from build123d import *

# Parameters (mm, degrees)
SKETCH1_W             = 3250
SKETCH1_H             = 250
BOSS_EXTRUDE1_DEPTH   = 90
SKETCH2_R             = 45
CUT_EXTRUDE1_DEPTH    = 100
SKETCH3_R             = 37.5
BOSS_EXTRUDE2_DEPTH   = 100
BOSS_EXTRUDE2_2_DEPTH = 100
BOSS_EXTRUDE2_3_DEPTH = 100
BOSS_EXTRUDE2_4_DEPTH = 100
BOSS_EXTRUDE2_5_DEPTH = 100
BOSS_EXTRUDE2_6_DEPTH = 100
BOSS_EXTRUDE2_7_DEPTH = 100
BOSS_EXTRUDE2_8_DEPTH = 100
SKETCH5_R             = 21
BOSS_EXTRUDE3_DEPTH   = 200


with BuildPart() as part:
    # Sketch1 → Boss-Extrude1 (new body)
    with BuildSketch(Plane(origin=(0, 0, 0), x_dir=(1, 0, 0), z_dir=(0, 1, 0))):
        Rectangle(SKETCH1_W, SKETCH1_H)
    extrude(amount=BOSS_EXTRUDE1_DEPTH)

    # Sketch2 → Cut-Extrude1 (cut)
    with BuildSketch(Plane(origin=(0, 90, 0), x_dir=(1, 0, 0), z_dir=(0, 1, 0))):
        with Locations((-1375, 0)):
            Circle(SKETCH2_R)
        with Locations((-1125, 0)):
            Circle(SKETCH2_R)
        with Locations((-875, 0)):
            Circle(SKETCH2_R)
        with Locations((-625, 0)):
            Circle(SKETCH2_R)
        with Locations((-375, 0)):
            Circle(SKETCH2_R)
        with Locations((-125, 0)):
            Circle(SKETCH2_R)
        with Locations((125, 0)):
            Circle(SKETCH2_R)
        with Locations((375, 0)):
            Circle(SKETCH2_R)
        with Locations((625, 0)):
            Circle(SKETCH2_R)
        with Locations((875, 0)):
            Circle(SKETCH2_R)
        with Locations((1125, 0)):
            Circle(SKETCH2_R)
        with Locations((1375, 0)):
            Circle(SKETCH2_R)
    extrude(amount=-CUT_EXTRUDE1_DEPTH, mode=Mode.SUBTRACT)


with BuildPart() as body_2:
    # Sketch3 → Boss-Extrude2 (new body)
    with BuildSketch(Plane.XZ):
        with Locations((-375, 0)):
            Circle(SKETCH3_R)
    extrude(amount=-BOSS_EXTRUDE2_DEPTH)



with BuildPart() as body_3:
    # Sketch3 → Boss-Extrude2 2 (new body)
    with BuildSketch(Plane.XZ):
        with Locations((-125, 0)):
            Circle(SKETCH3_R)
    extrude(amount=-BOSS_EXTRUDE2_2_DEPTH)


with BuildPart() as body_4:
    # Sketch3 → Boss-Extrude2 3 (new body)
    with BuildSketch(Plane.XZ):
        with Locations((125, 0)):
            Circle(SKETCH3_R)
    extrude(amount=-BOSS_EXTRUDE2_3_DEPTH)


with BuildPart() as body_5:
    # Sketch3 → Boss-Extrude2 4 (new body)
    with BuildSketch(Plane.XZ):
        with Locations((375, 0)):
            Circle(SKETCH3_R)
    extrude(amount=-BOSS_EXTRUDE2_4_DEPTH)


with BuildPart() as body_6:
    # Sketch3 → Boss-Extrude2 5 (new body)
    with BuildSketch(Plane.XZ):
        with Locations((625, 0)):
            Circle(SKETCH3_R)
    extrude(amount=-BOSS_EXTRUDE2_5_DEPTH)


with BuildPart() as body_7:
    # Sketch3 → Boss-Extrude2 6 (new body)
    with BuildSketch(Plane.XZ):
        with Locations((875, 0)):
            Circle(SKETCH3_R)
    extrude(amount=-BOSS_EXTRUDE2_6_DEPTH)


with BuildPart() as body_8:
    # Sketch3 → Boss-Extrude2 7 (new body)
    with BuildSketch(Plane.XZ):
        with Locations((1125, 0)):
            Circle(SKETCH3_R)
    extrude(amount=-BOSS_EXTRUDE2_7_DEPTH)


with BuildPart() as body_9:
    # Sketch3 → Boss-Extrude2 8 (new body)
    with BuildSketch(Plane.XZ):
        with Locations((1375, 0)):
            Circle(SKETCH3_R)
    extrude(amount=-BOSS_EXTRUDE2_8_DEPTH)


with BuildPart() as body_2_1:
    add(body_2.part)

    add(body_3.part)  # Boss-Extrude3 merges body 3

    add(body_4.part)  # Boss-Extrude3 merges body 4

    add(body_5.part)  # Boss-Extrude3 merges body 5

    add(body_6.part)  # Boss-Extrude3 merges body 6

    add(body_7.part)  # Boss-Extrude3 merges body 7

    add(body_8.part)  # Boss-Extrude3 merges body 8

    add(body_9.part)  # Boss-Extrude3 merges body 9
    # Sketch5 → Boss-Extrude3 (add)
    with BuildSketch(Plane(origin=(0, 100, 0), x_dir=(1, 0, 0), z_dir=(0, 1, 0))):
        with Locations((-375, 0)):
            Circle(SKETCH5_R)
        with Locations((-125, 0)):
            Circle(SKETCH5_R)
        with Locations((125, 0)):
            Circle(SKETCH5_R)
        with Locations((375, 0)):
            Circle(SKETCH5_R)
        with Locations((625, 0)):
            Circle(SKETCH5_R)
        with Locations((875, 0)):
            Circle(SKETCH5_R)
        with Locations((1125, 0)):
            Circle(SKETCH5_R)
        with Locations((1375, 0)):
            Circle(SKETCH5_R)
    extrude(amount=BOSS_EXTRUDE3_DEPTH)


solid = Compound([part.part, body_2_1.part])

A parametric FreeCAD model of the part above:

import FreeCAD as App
import Part
import Sketcher

doc = App.newDocument("Part")
body = doc.addObject("PartDesign::Body", "Body")

# Sketch on XZ plane
sketch1 = doc.addObject("Sketcher::SketchObject", "Sketch")
body.addObject(sketch1)
sketch1.AttachmentSupport = (doc.XZ_Plane, [""])
sketch1.MapMode = "FlatFace"
sketch1.addGeometry(Part.LineSegment(App.Vector(-1625, -125, 0), App.Vector(-1625, 125, 0)), False)
sketch1.addGeometry(Part.LineSegment(App.Vector(-1625, 125, 0), App.Vector(1625, 125, 0)), False)
sketch1.addGeometry(Part.LineSegment(App.Vector(1625, 125, 0), App.Vector(1625, -125, 0)), False)
sketch1.addGeometry(Part.LineSegment(App.Vector(1625, -125, 0), App.Vector(-1625, -125, 0)), False)
sketch1.addConstraint(Sketcher.Constraint("Coincident", 0, 2, 1, 1))
sketch1.addConstraint(Sketcher.Constraint("Coincident", 1, 2, 2, 1))
sketch1.addConstraint(Sketcher.Constraint("Coincident", 2, 2, 3, 1))
sketch1.addConstraint(Sketcher.Constraint("Coincident", 3, 2, 0, 1))
sketch1.addConstraint(Sketcher.Constraint("Vertical", 0))
sketch1.addConstraint(Sketcher.Constraint("Horizontal", 1))
sketch1.addConstraint(Sketcher.Constraint("Vertical", 2))
sketch1.addConstraint(Sketcher.Constraint("Horizontal", 3))
sketch1.addConstraint(Sketcher.Constraint("Symmetric", 0, 2, 2, 2, -1, 1))
sketch1.addConstraint(Sketcher.Constraint("DistanceX", 1, 1, 1, 2, 3250.0))
sketch1.addConstraint(Sketcher.Constraint("DistanceY", 0, 1, 0, 2, 250.0))
pad1 = doc.addObject("PartDesign::Pad", "Pad")
body.addObject(pad1)
pad1.Profile = sketch1
pad1.Length = 90
pad1.Reversed = True

# Sketch on XZ plane
sketch2 = doc.addObject("Sketcher::SketchObject", "Sketch001")
body.addObject(sketch2)
sketch2.AttachmentSupport = (doc.XZ_Plane, [""])
sketch2.MapMode = "FlatFace"
sketch2.AttachmentOffset = App.Placement(App.Vector(0, 0, -90), App.Rotation())
sketch2.addGeometry(Part.Circle(App.Vector(-1375, 0, 0), App.Vector(0, 0, 1), 45), False)
sketch2.addGeometry(Part.Circle(App.Vector(-1125, 0, 0), App.Vector(0, 0, 1), 45), False)
sketch2.addGeometry(Part.Circle(App.Vector(-875, 0, 0), App.Vector(0, 0, 1), 45), False)
sketch2.addGeometry(Part.Circle(App.Vector(-625, 0, 0), App.Vector(0, 0, 1), 45), False)
sketch2.addGeometry(Part.Circle(App.Vector(-375, 0, 0), App.Vector(0, 0, 1), 45), False)
sketch2.addGeometry(Part.Circle(App.Vector(-125, 0, 0), App.Vector(0, 0, 1), 45), False)
sketch2.addGeometry(Part.Circle(App.Vector(125, 0, 0), App.Vector(0, 0, 1), 45), False)
sketch2.addGeometry(Part.Circle(App.Vector(375, 0, 0), App.Vector(0, 0, 1), 45), False)
sketch2.addGeometry(Part.Circle(App.Vector(625, 0, 0), App.Vector(0, 0, 1), 45), False)
sketch2.addGeometry(Part.Circle(App.Vector(875, 0, 0), App.Vector(0, 0, 1), 45), False)
sketch2.addGeometry(Part.Circle(App.Vector(1125, 0, 0), App.Vector(0, 0, 1), 45), False)
sketch2.addGeometry(Part.Circle(App.Vector(1375, 0, 0), App.Vector(0, 0, 1), 45), False)
sketch2.addConstraint(Sketcher.Constraint("Equal", 0, 1))
sketch2.addConstraint(Sketcher.Constraint("Equal", 1, 2))
sketch2.addConstraint(Sketcher.Constraint("Equal", 2, 3))
sketch2.addConstraint(Sketcher.Constraint("Equal", 3, 4))
sketch2.addConstraint(Sketcher.Constraint("Equal", 4, 5))
sketch2.addConstraint(Sketcher.Constraint("Equal", 5, 6))
sketch2.addConstraint(Sketcher.Constraint("Equal", 6, 7))
sketch2.addConstraint(Sketcher.Constraint("Equal", 7, 8))
sketch2.addConstraint(Sketcher.Constraint("Equal", 8, 9))
sketch2.addConstraint(Sketcher.Constraint("Equal", 9, 10))
sketch2.addConstraint(Sketcher.Constraint("Equal", 10, 11))
sketch2.addConstraint(Sketcher.Constraint("Symmetric", 5, 3, 6, 3, -1, 1))
sketch2.addConstraint(Sketcher.Constraint("Symmetric", 4, 3, 7, 3, -1, 1))
sketch2.addConstraint(Sketcher.Constraint("Symmetric", 3, 3, 8, 3, -1, 1))
sketch2.addConstraint(Sketcher.Constraint("Symmetric", 2, 3, 9, 3, -1, 1))
sketch2.addConstraint(Sketcher.Constraint("Symmetric", 1, 3, 10, 3, -1, 1))
sketch2.addConstraint(Sketcher.Constraint("Symmetric", 0, 3, 11, 3, -1, 1))
sketch2.addConstraint(Sketcher.Constraint("PointOnObject", 0, 3, -1))
sketch2.addConstraint(Sketcher.Constraint("PointOnObject", 1, 3, -1))
sketch2.addConstraint(Sketcher.Constraint("PointOnObject", 2, 3, -1))
sketch2.addConstraint(Sketcher.Constraint("PointOnObject", 3, 3, -1))
sketch2.addConstraint(Sketcher.Constraint("PointOnObject", 4, 3, -1))
sketch2.addConstraint(Sketcher.Constraint("PointOnObject", 5, 3, -1))
sketch2.addConstraint(Sketcher.Constraint("Diameter", 0, 90.0))
sketch2.addConstraint(Sketcher.Constraint("DistanceX", 0, 3, -1, 1, 1375.0))
sketch2.addConstraint(Sketcher.Constraint("DistanceX", 1, 3, -1, 1, 1125.0))
sketch2.addConstraint(Sketcher.Constraint("DistanceX", 2, 3, -1, 1, 875.0))
sketch2.addConstraint(Sketcher.Constraint("DistanceX", 3, 3, -1, 1, 625.0))
sketch2.addConstraint(Sketcher.Constraint("DistanceX", 4, 3, -1, 1, 375.0))
sketch2.addConstraint(Sketcher.Constraint("DistanceX", 5, 3, -1, 1, 125.0))
pocket1 = doc.addObject("PartDesign::Pocket", "Pocket")
body.addObject(pocket1)
pocket1.Profile = sketch2
pocket1.Length = 100
pocket1.Reversed = True
body2 = doc.addObject("PartDesign::Body", "Body001")

# Sketch on XZ plane
sketch3 = doc.addObject("Sketcher::SketchObject", "Sketch002")
body2.addObject(sketch3)
sketch3.AttachmentSupport = (doc.getObject("XZ_Plane001"), [""])
sketch3.MapMode = "FlatFace"
sketch3.addGeometry(Part.Circle(App.Vector(-375, 0, 0), App.Vector(0, 0, 1), 37.5), False)
sketch3.addConstraint(Sketcher.Constraint("PointOnObject", 0, 3, -1))
sketch3.addConstraint(Sketcher.Constraint("Diameter", 0, 75.0))
sketch3.addConstraint(Sketcher.Constraint("DistanceX", 0, 3, -1, 1, 375.0))
pad2 = doc.addObject("PartDesign::Pad", "Pad001")
body2.addObject(pad2)
pad2.Profile = sketch3
pad2.Length = 100
pad2.Reversed = True
body3 = doc.addObject("PartDesign::Body", "Body002")

# Sketch on XZ plane
sketch4 = doc.addObject("Sketcher::SketchObject", "Sketch003")
body3.addObject(sketch4)
sketch4.AttachmentSupport = (doc.getObject("XZ_Plane002"), [""])
sketch4.MapMode = "FlatFace"
sketch4.addGeometry(Part.Circle(App.Vector(-125, 0, 0), App.Vector(0, 0, 1), 37.5), False)
sketch4.addConstraint(Sketcher.Constraint("PointOnObject", 0, 3, -1))
sketch4.addConstraint(Sketcher.Constraint("Diameter", 0, 75.0))
sketch4.addConstraint(Sketcher.Constraint("DistanceX", 0, 3, -1, 1, 125.0))
pad3 = doc.addObject("PartDesign::Pad", "Pad002")
body3.addObject(pad3)
pad3.Profile = sketch4
pad3.Length = 100
pad3.Reversed = True
body4 = doc.addObject("PartDesign::Body", "Body003")

# Sketch on XZ plane
sketch5 = doc.addObject("Sketcher::SketchObject", "Sketch004")
body4.addObject(sketch5)
sketch5.AttachmentSupport = (doc.getObject("XZ_Plane003"), [""])
sketch5.MapMode = "FlatFace"
sketch5.addGeometry(Part.Circle(App.Vector(125, 0, 0), App.Vector(0, 0, 1), 37.5), False)
sketch5.addConstraint(Sketcher.Constraint("PointOnObject", 0, 3, -1))
sketch5.addConstraint(Sketcher.Constraint("Diameter", 0, 75.0))
sketch5.addConstraint(Sketcher.Constraint("DistanceX", -1, 1, 0, 3, 125.0))
pad4 = doc.addObject("PartDesign::Pad", "Pad003")
body4.addObject(pad4)
pad4.Profile = sketch5
pad4.Length = 100
pad4.Reversed = True
body5 = doc.addObject("PartDesign::Body", "Body004")

# Sketch on XZ plane
sketch6 = doc.addObject("Sketcher::SketchObject", "Sketch005")
body5.addObject(sketch6)
sketch6.AttachmentSupport = (doc.getObject("XZ_Plane004"), [""])
sketch6.MapMode = "FlatFace"
sketch6.addGeometry(Part.Circle(App.Vector(375, 0, 0), App.Vector(0, 0, 1), 37.5), False)
sketch6.addConstraint(Sketcher.Constraint("PointOnObject", 0, 3, -1))
sketch6.addConstraint(Sketcher.Constraint("Diameter", 0, 75.0))
sketch6.addConstraint(Sketcher.Constraint("DistanceX", -1, 1, 0, 3, 375.0))
pad5 = doc.addObject("PartDesign::Pad", "Pad004")
body5.addObject(pad5)
pad5.Profile = sketch6
pad5.Length = 100
pad5.Reversed = True
body6 = doc.addObject("PartDesign::Body", "Body005")

# Sketch on XZ plane
sketch7 = doc.addObject("Sketcher::SketchObject", "Sketch006")
body6.addObject(sketch7)
sketch7.AttachmentSupport = (doc.getObject("XZ_Plane005"), [""])
sketch7.MapMode = "FlatFace"
sketch7.addGeometry(Part.Circle(App.Vector(625, 0, 0), App.Vector(0, 0, 1), 37.5), False)
sketch7.addConstraint(Sketcher.Constraint("PointOnObject", 0, 3, -1))
sketch7.addConstraint(Sketcher.Constraint("Diameter", 0, 75.0))
sketch7.addConstraint(Sketcher.Constraint("DistanceX", -1, 1, 0, 3, 625.0))
pad6 = doc.addObject("PartDesign::Pad", "Pad005")
body6.addObject(pad6)
pad6.Profile = sketch7
pad6.Length = 100
pad6.Reversed = True
body7 = doc.addObject("PartDesign::Body", "Body006")

# Sketch on XZ plane
sketch8 = doc.addObject("Sketcher::SketchObject", "Sketch007")
body7.addObject(sketch8)
sketch8.AttachmentSupport = (doc.getObject("XZ_Plane006"), [""])
sketch8.MapMode = "FlatFace"
sketch8.addGeometry(Part.Circle(App.Vector(875, 0, 0), App.Vector(0, 0, 1), 37.5), False)
sketch8.addConstraint(Sketcher.Constraint("PointOnObject", 0, 3, -1))
sketch8.addConstraint(Sketcher.Constraint("Diameter", 0, 75.0))
sketch8.addConstraint(Sketcher.Constraint("DistanceX", -1, 1, 0, 3, 875.0))
pad7 = doc.addObject("PartDesign::Pad", "Pad006")
body7.addObject(pad7)
pad7.Profile = sketch8
pad7.Length = 100
pad7.Reversed = True
body8 = doc.addObject("PartDesign::Body", "Body007")

# Sketch on XZ plane
sketch9 = doc.addObject("Sketcher::SketchObject", "Sketch008")
body8.addObject(sketch9)
sketch9.AttachmentSupport = (doc.getObject("XZ_Plane007"), [""])
sketch9.MapMode = "FlatFace"
sketch9.addGeometry(Part.Circle(App.Vector(1125, 0, 0), App.Vector(0, 0, 1), 37.5), False)
sketch9.addConstraint(Sketcher.Constraint("PointOnObject", 0, 3, -1))
sketch9.addConstraint(Sketcher.Constraint("Diameter", 0, 75.0))
sketch9.addConstraint(Sketcher.Constraint("DistanceX", -1, 1, 0, 3, 1125.0))
pad8 = doc.addObject("PartDesign::Pad", "Pad007")
body8.addObject(pad8)
pad8.Profile = sketch9
pad8.Length = 100
pad8.Reversed = True
body9 = doc.addObject("PartDesign::Body", "Body008")

# Sketch on XZ plane
sketch10 = doc.addObject("Sketcher::SketchObject", "Sketch009")
body9.addObject(sketch10)
sketch10.AttachmentSupport = (doc.getObject("XZ_Plane008"), [""])
sketch10.MapMode = "FlatFace"
sketch10.addGeometry(Part.Circle(App.Vector(1375, 0, 0), App.Vector(0, 0, 1), 37.5), False)
sketch10.addConstraint(Sketcher.Constraint("PointOnObject", 0, 3, -1))
sketch10.addConstraint(Sketcher.Constraint("Diameter", 0, 75.0))
sketch10.addConstraint(Sketcher.Constraint("DistanceX", -1, 1, 0, 3, 1375.0))
pad9 = doc.addObject("PartDesign::Pad", "Pad008")
body9.addObject(pad9)
pad9.Profile = sketch10
pad9.Length = 100
pad9.Reversed = True
body2.AllowCompound = True
doc.recompute()

boolean = doc.addObject("PartDesign::Boolean", "Boolean")
body2.addObject(boolean)
boolean.Type = "Fuse"
boolean.addObjects([body3])
doc.recompute()

boolean2 = doc.addObject("PartDesign::Boolean", "Boolean001")
body2.addObject(boolean2)
boolean2.Type = "Fuse"
boolean2.addObjects([body4])
doc.recompute()

boolean3 = doc.addObject("PartDesign::Boolean", "Boolean002")
body2.addObject(boolean3)
boolean3.Type = "Fuse"
boolean3.addObjects([body5])
doc.recompute()

boolean4 = doc.addObject("PartDesign::Boolean", "Boolean003")
body2.addObject(boolean4)
boolean4.Type = "Fuse"
boolean4.addObjects([body6])
doc.recompute()

boolean5 = doc.addObject("PartDesign::Boolean", "Boolean004")
body2.addObject(boolean5)
boolean5.Type = "Fuse"
boolean5.addObjects([body7])
doc.recompute()

boolean6 = doc.addObject("PartDesign::Boolean", "Boolean005")
body2.addObject(boolean6)
boolean6.Type = "Fuse"
boolean6.addObjects([body8])
doc.recompute()

boolean7 = doc.addObject("PartDesign::Boolean", "Boolean006")
body2.addObject(boolean7)
boolean7.Type = "Fuse"
boolean7.addObjects([body9])

# Sketch on XZ plane
sketch11 = doc.addObject("Sketcher::SketchObject", "Sketch010")
body2.addObject(sketch11)
sketch11.AttachmentSupport = (doc.getObject("XZ_Plane001"), [""])
sketch11.MapMode = "FlatFace"
sketch11.AttachmentOffset = App.Placement(App.Vector(0, 0, -100), App.Rotation())
sketch11.addGeometry(Part.Circle(App.Vector(-375, 0, 0), App.Vector(0, 0, 1), 21), False)
sketch11.addGeometry(Part.Circle(App.Vector(-125, 0, 0), App.Vector(0, 0, 1), 21), False)
sketch11.addGeometry(Part.Circle(App.Vector(125, 0, 0), App.Vector(0, 0, 1), 21), False)
sketch11.addGeometry(Part.Circle(App.Vector(375, 0, 0), App.Vector(0, 0, 1), 21), False)
sketch11.addGeometry(Part.Circle(App.Vector(625, 0, 0), App.Vector(0, 0, 1), 21), False)
sketch11.addGeometry(Part.Circle(App.Vector(875, 0, 0), App.Vector(0, 0, 1), 21), False)
sketch11.addGeometry(Part.Circle(App.Vector(1125, 0, 0), App.Vector(0, 0, 1), 21), False)
sketch11.addGeometry(Part.Circle(App.Vector(1375, 0, 0), App.Vector(0, 0, 1), 21), False)
sketch11.addConstraint(Sketcher.Constraint("Equal", 0, 1))
sketch11.addConstraint(Sketcher.Constraint("Equal", 1, 2))
sketch11.addConstraint(Sketcher.Constraint("Equal", 2, 3))
sketch11.addConstraint(Sketcher.Constraint("Equal", 3, 4))
sketch11.addConstraint(Sketcher.Constraint("Equal", 4, 5))
sketch11.addConstraint(Sketcher.Constraint("Equal", 5, 6))
sketch11.addConstraint(Sketcher.Constraint("Equal", 6, 7))
sketch11.addConstraint(Sketcher.Constraint("Symmetric", 1, 3, 2, 3, -1, 1))
sketch11.addConstraint(Sketcher.Constraint("Symmetric", 0, 3, 3, 3, -1, 1))
sketch11.addConstraint(Sketcher.Constraint("PointOnObject", 0, 3, -1))
sketch11.addConstraint(Sketcher.Constraint("PointOnObject", 1, 3, -1))
sketch11.addConstraint(Sketcher.Constraint("PointOnObject", 4, 3, -1))
sketch11.addConstraint(Sketcher.Constraint("PointOnObject", 5, 3, -1))
sketch11.addConstraint(Sketcher.Constraint("PointOnObject", 6, 3, -1))
sketch11.addConstraint(Sketcher.Constraint("PointOnObject", 7, 3, -1))
sketch11.addConstraint(Sketcher.Constraint("Diameter", 0, 42.0))
sketch11.addConstraint(Sketcher.Constraint("DistanceX", 0, 3, -1, 1, 375.0))
sketch11.addConstraint(Sketcher.Constraint("DistanceX", 1, 3, -1, 1, 125.0))
sketch11.addConstraint(Sketcher.Constraint("DistanceX", -1, 1, 4, 3, 625.0))
sketch11.addConstraint(Sketcher.Constraint("DistanceX", -1, 1, 5, 3, 875.0))
sketch11.addConstraint(Sketcher.Constraint("DistanceX", -1, 1, 6, 3, 1125.0))
sketch11.addConstraint(Sketcher.Constraint("DistanceX", -1, 1, 7, 3, 1375.0))
pad10 = doc.addObject("PartDesign::Pad", "Pad009")
body2.addObject(pad10)
pad10.Profile = sketch11
pad10.Length = 200
pad10.Reversed = True

doc.recompute()
